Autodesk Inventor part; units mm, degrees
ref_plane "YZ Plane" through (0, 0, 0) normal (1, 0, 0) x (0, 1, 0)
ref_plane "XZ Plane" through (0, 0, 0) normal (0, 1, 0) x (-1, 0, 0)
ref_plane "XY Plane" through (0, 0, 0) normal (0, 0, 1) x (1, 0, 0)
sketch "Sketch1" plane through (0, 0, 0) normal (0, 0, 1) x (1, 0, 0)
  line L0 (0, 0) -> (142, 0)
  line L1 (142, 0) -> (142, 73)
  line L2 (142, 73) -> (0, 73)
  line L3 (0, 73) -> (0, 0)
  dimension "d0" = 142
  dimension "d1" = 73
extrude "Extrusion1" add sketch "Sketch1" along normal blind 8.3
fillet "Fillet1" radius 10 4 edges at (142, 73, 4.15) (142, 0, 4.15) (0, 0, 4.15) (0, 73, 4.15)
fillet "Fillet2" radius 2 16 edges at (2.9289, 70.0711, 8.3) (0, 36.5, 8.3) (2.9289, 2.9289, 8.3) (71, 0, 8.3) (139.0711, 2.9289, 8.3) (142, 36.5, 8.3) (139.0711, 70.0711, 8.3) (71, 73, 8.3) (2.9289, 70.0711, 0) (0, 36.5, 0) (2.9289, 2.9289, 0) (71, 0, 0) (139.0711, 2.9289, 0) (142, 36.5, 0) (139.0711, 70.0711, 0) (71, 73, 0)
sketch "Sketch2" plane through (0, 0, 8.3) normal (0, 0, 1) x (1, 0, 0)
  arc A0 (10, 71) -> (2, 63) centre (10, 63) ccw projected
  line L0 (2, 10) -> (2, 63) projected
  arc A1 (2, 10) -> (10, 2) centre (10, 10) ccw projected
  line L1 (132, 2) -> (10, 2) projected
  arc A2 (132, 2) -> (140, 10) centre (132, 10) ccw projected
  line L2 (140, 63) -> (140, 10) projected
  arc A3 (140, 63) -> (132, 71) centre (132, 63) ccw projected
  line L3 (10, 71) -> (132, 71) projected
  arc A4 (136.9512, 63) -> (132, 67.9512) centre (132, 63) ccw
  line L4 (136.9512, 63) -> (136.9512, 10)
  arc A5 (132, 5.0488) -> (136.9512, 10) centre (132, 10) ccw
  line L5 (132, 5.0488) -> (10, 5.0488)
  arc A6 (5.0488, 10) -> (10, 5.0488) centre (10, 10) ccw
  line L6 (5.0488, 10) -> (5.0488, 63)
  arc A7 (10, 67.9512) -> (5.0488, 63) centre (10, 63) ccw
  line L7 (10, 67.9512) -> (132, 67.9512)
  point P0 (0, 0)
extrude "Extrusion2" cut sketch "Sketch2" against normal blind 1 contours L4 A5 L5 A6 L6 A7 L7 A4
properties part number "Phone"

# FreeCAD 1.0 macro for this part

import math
import FreeCAD as App
import Part
import Sketcher
from FreeCAD import Vector


def edges_at(feature, points):
    """Names of the edges that pass closest to the given points."""
    edges = feature.Shape.Edges
    near = lambda p: min(range(len(edges)), key=lambda i: edges[i].distToShape(Part.Vertex(*p))[0])
    return sorted({f"Edge{near(p) + 1}" for p in points})

doc = App.newDocument("Part")
body = doc.addObject("PartDesign::Body", "Body")

# Sketch on XY plane
sketch1 = body.newObject("Sketcher::SketchObject", "Sketch")
sketch1.AttachmentSupport = (doc.getObject("XY_Plane"), [""])
sketch1.MapMode = "FlatFace"
sketch1.addGeometry([
    Part.LineSegment(Vector(0, 73, 0), Vector(0, 0, 0)),
    Part.LineSegment(Vector(0, 0, 0), Vector(142, 0, 0)),
    Part.LineSegment(Vector(142, 0, 0), Vector(142, 73, 0)),
    Part.LineSegment(Vector(142, 73, 0), Vector(0, 73, 0)),
], False)
sketch1.addConstraint([
    Sketcher.Constraint("Coincident", 0, 2, 1, 1),
    Sketcher.Constraint("Coincident", 1, 2, 2, 1),
    Sketcher.Constraint("Coincident", 2, 2, 3, 1),
    Sketcher.Constraint("Coincident", 3, 2, 0, 1),
    Sketcher.Constraint("Vertical", 0),
    Sketcher.Constraint("Horizontal", 1),
    Sketcher.Constraint("Vertical", 2),
    Sketcher.Constraint("Horizontal", 3),
    Sketcher.Constraint("Coincident", 0, 2, -1, 1),
    Sketcher.Constraint("DistanceX", 1, 1, 1, 2, 142.0),
    Sketcher.Constraint("DistanceY", 0, 2, 0, 1, 73.0),
])
pad1 = body.newObject("PartDesign::Pad", "Pad")
pad1.Profile = sketch1
pad1.Length = 8.3
doc.recompute()

fillet = body.newObject("PartDesign::Fillet", "Fillet")
fillet.Base = (pad1, edges_at(pad1, [
    (142, 73, 4.15),
    (142, 0, 4.15),
    (0, 0, 4.15),
    (0, 73, 4.15),
]))
fillet.Radius = 10
doc.recompute()

fillet2 = body.newObject("PartDesign::Fillet", "Fillet001")
fillet2.Base = (fillet, edges_at(fillet, [
    (2.929, 70.071, 8.3),
    (0, 36.5, 8.3),
    (2.929, 2.929, 8.3),
    (71, 0, 8.3),
    (139.071, 2.929, 8.3),
    (142, 36.5, 8.3),
    (139.071, 70.071, 8.3),
    (71, 73, 8.3),
    (2.929, 70.071, 0),
    (0, 36.5, 0),
    (2.929, 2.929, 0),
    (71, 0, 0),
    (139.071, 2.929, 0),
    (142, 36.5, 0),
    (139.071, 70.071, 0),
    (71, 73, 0),
]))
fillet2.Radius = 2

# Sketch on XY plane
sketch2 = body.newObject("Sketcher::SketchObject", "Sketch001")
sketch2.AttachmentSupport = (doc.getObject("XY_Plane"), [""])
sketch2.MapMode = "FlatFace"
sketch2.AttachmentOffset = App.Placement(Vector(0, 0, 8.3), App.Rotation())
sketch2.addGeometry([
    Part.LineSegment(Vector(137, 10, 0), Vector(137, 63, 0)),  # 0
    Part.ArcOfCircle(Part.Circle(Vector(132, 63, 0), Vector(0, 0, 1), 5), math.radians(0), math.radians(90)),  # 1
    Part.LineSegment(Vector(132, 68, 0), Vector(10, 68, 0)),  # 2
    Part.ArcOfCircle(Part.Circle(Vector(10, 63, 0), Vector(0, 0, 1), 5), math.radians(90), math.radians(180)),  # 3
    Part.LineSegment(Vector(5, 63, 0), Vector(5, 10, 0)),  # 4
    Part.ArcOfCircle(Part.Circle(Vector(10, 10, 0), Vector(0, 0, 1), 5), math.radians(180), math.radians(270)),  # 5
    Part.LineSegment(Vector(10, 5, 0), Vector(132, 5, 0)),  # 6
    Part.ArcOfCircle(Part.Circle(Vector(132, 10, 0), Vector(0, 0, 1), 5), math.radians(-90), math.radians(0)),  # 7
], False)
sketch2.addConstraint([
    Sketcher.Constraint("Tangent", 0, 2, 1, 1),
    Sketcher.Constraint("Tangent", 1, 2, 2, 1),
    Sketcher.Constraint("Tangent", 2, 2, 3, 1),
    Sketcher.Constraint("Tangent", 3, 2, 4, 1),
    Sketcher.Constraint("Tangent", 4, 2, 5, 1),
    Sketcher.Constraint("Tangent", 5, 2, 6, 1),
    Sketcher.Constraint("Tangent", 6, 2, 7, 1),
    Sketcher.Constraint("Tangent", 7, 2, 0, 1),
    Sketcher.Constraint("Vertical", 0),
    Sketcher.Constraint("Horizontal", 2),
    Sketcher.Constraint("Vertical", 4),
    Sketcher.Constraint("Horizontal", 6),
    Sketcher.Constraint("Equal", 1, 3),
    Sketcher.Constraint("Equal", 3, 5),
    Sketcher.Constraint("Equal", 5, 7),
    Sketcher.Constraint("DistanceX", 2, 2, 2, 1, 122.0),
    Sketcher.Constraint("DistanceY", 0, 1, 0, 2, 53.0),
    Sketcher.Constraint("DistanceX", -1, 1, 1, 3, 132.0),
    Sketcher.Constraint("DistanceY", -1, 1, 1, 3, 63.0),
    Sketcher.Constraint("Radius", 1, 4.9512),
])
pocket1 = body.newObject("PartDesign::Pocket", "Pocket")
pocket1.Profile = sketch2
pocket1.Length = 1

doc.recompute()
